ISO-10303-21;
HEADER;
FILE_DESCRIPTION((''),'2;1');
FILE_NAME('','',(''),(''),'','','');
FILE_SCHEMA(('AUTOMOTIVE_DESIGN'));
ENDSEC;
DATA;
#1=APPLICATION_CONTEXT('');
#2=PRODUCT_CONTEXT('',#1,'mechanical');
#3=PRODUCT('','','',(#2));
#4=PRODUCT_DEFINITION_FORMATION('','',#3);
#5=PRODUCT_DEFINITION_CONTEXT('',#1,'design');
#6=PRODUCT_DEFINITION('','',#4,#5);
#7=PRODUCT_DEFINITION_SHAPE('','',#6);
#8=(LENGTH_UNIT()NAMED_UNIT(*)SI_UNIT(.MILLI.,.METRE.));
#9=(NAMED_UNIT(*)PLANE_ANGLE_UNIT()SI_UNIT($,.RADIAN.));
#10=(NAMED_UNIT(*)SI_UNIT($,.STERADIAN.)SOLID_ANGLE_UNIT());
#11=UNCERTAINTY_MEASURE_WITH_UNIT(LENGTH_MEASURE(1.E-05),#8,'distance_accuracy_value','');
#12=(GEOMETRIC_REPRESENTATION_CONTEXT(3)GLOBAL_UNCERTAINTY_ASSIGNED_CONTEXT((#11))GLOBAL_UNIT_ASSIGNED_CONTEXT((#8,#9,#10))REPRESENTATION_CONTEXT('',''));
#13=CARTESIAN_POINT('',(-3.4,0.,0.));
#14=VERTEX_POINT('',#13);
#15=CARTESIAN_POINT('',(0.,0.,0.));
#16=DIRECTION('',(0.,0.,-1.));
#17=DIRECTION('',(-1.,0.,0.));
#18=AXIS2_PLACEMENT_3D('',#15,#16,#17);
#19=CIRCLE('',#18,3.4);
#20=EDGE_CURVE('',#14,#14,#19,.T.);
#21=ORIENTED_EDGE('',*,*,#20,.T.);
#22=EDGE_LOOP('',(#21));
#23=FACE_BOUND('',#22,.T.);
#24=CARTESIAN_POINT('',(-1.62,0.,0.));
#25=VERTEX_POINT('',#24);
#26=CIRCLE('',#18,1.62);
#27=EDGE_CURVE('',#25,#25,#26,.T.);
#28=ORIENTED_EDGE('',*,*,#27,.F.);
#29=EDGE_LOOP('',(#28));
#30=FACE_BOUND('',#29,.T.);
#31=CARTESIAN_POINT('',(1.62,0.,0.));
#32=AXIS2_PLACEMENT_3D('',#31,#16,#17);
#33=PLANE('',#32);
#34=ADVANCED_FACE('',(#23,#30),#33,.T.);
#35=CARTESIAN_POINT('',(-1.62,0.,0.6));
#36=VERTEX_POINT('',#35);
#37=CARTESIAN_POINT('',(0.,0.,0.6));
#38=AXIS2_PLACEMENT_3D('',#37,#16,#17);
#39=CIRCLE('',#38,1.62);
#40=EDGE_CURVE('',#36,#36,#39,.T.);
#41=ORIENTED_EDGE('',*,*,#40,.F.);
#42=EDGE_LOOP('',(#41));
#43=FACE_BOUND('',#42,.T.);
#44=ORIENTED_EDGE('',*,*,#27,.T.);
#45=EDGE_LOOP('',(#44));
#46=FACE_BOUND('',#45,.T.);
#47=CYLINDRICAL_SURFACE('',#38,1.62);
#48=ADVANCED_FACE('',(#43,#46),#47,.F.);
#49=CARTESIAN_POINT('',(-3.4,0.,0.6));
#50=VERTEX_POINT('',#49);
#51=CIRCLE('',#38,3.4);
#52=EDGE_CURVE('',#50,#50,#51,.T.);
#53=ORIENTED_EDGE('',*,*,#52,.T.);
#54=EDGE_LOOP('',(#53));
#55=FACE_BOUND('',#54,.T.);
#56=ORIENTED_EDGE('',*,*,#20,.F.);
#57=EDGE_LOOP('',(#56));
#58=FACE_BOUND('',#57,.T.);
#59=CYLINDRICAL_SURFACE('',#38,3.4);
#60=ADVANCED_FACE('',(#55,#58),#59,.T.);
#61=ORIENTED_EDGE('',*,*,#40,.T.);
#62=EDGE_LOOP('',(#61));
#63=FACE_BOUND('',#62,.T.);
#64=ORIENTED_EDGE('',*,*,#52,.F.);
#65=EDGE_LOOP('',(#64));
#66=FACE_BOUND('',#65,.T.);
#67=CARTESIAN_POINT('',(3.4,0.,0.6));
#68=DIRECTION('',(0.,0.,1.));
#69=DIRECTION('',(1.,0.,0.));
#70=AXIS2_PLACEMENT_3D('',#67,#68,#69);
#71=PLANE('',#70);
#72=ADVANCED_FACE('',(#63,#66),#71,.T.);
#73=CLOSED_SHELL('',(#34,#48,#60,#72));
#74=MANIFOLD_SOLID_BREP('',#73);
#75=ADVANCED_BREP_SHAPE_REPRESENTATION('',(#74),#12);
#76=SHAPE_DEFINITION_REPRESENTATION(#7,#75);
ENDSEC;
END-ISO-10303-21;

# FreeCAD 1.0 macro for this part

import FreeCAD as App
import Part
import Sketcher
Q = App.Units.Quantity


def add_polygon(sketch, points):
    """Adds a closed chain of lines whose ends are joined by coincident constraints."""
    first, n = sketch.GeometryCount, len(points)
    for a, b in zip(points, points[1:] + points[:1]):
        sketch.addGeometry(Part.LineSegment(App.Vector(*a, 0), App.Vector(*b, 0)), False)
    for i in range(n):
        sketch.addConstraint(Sketcher.Constraint("Coincident", first + i, 2, first + (i + 1) % n, 1))

doc = App.newDocument("Part")
body = doc.addObject("PartDesign::Body", "Body")

sketch1 = body.newObject("Sketcher::SketchObject", "Sketch")
sketch1.AttachmentSupport = (doc.getObject("XZ_Plane"), [""])
sketch1.MapMode = "FlatFace"
add_polygon(sketch1, [(1.6, 0.6), (1.6, 0), (3.4, 0), (3.4, 0.6)])
sketch1.addConstraint([
    Sketcher.Constraint("Vertical", 0),
    Sketcher.Constraint("Horizontal", 1),
    Sketcher.Constraint("Vertical", 2),
    Sketcher.Constraint("Horizontal", 3),
    Sketcher.Constraint("PointOnObject", 0, 2, -1),
    Sketcher.Constraint("DistanceY", 0, 2, 0, 1, Q("0.6 mm")),
    Sketcher.Constraint("DistanceX", 1, 1, 1, 2, Q("1.78 mm")),
    Sketcher.Constraint("DistanceX", -1, 1, 1, 2, Q("3.4 mm")),
])
revolution = body.newObject("PartDesign::Revolution", "Revolution")
revolution.Profile = sketch1
revolution.ReferenceAxis = (sketch1, ["V_Axis"])
revolution.Angle = 360

doc.recompute()
